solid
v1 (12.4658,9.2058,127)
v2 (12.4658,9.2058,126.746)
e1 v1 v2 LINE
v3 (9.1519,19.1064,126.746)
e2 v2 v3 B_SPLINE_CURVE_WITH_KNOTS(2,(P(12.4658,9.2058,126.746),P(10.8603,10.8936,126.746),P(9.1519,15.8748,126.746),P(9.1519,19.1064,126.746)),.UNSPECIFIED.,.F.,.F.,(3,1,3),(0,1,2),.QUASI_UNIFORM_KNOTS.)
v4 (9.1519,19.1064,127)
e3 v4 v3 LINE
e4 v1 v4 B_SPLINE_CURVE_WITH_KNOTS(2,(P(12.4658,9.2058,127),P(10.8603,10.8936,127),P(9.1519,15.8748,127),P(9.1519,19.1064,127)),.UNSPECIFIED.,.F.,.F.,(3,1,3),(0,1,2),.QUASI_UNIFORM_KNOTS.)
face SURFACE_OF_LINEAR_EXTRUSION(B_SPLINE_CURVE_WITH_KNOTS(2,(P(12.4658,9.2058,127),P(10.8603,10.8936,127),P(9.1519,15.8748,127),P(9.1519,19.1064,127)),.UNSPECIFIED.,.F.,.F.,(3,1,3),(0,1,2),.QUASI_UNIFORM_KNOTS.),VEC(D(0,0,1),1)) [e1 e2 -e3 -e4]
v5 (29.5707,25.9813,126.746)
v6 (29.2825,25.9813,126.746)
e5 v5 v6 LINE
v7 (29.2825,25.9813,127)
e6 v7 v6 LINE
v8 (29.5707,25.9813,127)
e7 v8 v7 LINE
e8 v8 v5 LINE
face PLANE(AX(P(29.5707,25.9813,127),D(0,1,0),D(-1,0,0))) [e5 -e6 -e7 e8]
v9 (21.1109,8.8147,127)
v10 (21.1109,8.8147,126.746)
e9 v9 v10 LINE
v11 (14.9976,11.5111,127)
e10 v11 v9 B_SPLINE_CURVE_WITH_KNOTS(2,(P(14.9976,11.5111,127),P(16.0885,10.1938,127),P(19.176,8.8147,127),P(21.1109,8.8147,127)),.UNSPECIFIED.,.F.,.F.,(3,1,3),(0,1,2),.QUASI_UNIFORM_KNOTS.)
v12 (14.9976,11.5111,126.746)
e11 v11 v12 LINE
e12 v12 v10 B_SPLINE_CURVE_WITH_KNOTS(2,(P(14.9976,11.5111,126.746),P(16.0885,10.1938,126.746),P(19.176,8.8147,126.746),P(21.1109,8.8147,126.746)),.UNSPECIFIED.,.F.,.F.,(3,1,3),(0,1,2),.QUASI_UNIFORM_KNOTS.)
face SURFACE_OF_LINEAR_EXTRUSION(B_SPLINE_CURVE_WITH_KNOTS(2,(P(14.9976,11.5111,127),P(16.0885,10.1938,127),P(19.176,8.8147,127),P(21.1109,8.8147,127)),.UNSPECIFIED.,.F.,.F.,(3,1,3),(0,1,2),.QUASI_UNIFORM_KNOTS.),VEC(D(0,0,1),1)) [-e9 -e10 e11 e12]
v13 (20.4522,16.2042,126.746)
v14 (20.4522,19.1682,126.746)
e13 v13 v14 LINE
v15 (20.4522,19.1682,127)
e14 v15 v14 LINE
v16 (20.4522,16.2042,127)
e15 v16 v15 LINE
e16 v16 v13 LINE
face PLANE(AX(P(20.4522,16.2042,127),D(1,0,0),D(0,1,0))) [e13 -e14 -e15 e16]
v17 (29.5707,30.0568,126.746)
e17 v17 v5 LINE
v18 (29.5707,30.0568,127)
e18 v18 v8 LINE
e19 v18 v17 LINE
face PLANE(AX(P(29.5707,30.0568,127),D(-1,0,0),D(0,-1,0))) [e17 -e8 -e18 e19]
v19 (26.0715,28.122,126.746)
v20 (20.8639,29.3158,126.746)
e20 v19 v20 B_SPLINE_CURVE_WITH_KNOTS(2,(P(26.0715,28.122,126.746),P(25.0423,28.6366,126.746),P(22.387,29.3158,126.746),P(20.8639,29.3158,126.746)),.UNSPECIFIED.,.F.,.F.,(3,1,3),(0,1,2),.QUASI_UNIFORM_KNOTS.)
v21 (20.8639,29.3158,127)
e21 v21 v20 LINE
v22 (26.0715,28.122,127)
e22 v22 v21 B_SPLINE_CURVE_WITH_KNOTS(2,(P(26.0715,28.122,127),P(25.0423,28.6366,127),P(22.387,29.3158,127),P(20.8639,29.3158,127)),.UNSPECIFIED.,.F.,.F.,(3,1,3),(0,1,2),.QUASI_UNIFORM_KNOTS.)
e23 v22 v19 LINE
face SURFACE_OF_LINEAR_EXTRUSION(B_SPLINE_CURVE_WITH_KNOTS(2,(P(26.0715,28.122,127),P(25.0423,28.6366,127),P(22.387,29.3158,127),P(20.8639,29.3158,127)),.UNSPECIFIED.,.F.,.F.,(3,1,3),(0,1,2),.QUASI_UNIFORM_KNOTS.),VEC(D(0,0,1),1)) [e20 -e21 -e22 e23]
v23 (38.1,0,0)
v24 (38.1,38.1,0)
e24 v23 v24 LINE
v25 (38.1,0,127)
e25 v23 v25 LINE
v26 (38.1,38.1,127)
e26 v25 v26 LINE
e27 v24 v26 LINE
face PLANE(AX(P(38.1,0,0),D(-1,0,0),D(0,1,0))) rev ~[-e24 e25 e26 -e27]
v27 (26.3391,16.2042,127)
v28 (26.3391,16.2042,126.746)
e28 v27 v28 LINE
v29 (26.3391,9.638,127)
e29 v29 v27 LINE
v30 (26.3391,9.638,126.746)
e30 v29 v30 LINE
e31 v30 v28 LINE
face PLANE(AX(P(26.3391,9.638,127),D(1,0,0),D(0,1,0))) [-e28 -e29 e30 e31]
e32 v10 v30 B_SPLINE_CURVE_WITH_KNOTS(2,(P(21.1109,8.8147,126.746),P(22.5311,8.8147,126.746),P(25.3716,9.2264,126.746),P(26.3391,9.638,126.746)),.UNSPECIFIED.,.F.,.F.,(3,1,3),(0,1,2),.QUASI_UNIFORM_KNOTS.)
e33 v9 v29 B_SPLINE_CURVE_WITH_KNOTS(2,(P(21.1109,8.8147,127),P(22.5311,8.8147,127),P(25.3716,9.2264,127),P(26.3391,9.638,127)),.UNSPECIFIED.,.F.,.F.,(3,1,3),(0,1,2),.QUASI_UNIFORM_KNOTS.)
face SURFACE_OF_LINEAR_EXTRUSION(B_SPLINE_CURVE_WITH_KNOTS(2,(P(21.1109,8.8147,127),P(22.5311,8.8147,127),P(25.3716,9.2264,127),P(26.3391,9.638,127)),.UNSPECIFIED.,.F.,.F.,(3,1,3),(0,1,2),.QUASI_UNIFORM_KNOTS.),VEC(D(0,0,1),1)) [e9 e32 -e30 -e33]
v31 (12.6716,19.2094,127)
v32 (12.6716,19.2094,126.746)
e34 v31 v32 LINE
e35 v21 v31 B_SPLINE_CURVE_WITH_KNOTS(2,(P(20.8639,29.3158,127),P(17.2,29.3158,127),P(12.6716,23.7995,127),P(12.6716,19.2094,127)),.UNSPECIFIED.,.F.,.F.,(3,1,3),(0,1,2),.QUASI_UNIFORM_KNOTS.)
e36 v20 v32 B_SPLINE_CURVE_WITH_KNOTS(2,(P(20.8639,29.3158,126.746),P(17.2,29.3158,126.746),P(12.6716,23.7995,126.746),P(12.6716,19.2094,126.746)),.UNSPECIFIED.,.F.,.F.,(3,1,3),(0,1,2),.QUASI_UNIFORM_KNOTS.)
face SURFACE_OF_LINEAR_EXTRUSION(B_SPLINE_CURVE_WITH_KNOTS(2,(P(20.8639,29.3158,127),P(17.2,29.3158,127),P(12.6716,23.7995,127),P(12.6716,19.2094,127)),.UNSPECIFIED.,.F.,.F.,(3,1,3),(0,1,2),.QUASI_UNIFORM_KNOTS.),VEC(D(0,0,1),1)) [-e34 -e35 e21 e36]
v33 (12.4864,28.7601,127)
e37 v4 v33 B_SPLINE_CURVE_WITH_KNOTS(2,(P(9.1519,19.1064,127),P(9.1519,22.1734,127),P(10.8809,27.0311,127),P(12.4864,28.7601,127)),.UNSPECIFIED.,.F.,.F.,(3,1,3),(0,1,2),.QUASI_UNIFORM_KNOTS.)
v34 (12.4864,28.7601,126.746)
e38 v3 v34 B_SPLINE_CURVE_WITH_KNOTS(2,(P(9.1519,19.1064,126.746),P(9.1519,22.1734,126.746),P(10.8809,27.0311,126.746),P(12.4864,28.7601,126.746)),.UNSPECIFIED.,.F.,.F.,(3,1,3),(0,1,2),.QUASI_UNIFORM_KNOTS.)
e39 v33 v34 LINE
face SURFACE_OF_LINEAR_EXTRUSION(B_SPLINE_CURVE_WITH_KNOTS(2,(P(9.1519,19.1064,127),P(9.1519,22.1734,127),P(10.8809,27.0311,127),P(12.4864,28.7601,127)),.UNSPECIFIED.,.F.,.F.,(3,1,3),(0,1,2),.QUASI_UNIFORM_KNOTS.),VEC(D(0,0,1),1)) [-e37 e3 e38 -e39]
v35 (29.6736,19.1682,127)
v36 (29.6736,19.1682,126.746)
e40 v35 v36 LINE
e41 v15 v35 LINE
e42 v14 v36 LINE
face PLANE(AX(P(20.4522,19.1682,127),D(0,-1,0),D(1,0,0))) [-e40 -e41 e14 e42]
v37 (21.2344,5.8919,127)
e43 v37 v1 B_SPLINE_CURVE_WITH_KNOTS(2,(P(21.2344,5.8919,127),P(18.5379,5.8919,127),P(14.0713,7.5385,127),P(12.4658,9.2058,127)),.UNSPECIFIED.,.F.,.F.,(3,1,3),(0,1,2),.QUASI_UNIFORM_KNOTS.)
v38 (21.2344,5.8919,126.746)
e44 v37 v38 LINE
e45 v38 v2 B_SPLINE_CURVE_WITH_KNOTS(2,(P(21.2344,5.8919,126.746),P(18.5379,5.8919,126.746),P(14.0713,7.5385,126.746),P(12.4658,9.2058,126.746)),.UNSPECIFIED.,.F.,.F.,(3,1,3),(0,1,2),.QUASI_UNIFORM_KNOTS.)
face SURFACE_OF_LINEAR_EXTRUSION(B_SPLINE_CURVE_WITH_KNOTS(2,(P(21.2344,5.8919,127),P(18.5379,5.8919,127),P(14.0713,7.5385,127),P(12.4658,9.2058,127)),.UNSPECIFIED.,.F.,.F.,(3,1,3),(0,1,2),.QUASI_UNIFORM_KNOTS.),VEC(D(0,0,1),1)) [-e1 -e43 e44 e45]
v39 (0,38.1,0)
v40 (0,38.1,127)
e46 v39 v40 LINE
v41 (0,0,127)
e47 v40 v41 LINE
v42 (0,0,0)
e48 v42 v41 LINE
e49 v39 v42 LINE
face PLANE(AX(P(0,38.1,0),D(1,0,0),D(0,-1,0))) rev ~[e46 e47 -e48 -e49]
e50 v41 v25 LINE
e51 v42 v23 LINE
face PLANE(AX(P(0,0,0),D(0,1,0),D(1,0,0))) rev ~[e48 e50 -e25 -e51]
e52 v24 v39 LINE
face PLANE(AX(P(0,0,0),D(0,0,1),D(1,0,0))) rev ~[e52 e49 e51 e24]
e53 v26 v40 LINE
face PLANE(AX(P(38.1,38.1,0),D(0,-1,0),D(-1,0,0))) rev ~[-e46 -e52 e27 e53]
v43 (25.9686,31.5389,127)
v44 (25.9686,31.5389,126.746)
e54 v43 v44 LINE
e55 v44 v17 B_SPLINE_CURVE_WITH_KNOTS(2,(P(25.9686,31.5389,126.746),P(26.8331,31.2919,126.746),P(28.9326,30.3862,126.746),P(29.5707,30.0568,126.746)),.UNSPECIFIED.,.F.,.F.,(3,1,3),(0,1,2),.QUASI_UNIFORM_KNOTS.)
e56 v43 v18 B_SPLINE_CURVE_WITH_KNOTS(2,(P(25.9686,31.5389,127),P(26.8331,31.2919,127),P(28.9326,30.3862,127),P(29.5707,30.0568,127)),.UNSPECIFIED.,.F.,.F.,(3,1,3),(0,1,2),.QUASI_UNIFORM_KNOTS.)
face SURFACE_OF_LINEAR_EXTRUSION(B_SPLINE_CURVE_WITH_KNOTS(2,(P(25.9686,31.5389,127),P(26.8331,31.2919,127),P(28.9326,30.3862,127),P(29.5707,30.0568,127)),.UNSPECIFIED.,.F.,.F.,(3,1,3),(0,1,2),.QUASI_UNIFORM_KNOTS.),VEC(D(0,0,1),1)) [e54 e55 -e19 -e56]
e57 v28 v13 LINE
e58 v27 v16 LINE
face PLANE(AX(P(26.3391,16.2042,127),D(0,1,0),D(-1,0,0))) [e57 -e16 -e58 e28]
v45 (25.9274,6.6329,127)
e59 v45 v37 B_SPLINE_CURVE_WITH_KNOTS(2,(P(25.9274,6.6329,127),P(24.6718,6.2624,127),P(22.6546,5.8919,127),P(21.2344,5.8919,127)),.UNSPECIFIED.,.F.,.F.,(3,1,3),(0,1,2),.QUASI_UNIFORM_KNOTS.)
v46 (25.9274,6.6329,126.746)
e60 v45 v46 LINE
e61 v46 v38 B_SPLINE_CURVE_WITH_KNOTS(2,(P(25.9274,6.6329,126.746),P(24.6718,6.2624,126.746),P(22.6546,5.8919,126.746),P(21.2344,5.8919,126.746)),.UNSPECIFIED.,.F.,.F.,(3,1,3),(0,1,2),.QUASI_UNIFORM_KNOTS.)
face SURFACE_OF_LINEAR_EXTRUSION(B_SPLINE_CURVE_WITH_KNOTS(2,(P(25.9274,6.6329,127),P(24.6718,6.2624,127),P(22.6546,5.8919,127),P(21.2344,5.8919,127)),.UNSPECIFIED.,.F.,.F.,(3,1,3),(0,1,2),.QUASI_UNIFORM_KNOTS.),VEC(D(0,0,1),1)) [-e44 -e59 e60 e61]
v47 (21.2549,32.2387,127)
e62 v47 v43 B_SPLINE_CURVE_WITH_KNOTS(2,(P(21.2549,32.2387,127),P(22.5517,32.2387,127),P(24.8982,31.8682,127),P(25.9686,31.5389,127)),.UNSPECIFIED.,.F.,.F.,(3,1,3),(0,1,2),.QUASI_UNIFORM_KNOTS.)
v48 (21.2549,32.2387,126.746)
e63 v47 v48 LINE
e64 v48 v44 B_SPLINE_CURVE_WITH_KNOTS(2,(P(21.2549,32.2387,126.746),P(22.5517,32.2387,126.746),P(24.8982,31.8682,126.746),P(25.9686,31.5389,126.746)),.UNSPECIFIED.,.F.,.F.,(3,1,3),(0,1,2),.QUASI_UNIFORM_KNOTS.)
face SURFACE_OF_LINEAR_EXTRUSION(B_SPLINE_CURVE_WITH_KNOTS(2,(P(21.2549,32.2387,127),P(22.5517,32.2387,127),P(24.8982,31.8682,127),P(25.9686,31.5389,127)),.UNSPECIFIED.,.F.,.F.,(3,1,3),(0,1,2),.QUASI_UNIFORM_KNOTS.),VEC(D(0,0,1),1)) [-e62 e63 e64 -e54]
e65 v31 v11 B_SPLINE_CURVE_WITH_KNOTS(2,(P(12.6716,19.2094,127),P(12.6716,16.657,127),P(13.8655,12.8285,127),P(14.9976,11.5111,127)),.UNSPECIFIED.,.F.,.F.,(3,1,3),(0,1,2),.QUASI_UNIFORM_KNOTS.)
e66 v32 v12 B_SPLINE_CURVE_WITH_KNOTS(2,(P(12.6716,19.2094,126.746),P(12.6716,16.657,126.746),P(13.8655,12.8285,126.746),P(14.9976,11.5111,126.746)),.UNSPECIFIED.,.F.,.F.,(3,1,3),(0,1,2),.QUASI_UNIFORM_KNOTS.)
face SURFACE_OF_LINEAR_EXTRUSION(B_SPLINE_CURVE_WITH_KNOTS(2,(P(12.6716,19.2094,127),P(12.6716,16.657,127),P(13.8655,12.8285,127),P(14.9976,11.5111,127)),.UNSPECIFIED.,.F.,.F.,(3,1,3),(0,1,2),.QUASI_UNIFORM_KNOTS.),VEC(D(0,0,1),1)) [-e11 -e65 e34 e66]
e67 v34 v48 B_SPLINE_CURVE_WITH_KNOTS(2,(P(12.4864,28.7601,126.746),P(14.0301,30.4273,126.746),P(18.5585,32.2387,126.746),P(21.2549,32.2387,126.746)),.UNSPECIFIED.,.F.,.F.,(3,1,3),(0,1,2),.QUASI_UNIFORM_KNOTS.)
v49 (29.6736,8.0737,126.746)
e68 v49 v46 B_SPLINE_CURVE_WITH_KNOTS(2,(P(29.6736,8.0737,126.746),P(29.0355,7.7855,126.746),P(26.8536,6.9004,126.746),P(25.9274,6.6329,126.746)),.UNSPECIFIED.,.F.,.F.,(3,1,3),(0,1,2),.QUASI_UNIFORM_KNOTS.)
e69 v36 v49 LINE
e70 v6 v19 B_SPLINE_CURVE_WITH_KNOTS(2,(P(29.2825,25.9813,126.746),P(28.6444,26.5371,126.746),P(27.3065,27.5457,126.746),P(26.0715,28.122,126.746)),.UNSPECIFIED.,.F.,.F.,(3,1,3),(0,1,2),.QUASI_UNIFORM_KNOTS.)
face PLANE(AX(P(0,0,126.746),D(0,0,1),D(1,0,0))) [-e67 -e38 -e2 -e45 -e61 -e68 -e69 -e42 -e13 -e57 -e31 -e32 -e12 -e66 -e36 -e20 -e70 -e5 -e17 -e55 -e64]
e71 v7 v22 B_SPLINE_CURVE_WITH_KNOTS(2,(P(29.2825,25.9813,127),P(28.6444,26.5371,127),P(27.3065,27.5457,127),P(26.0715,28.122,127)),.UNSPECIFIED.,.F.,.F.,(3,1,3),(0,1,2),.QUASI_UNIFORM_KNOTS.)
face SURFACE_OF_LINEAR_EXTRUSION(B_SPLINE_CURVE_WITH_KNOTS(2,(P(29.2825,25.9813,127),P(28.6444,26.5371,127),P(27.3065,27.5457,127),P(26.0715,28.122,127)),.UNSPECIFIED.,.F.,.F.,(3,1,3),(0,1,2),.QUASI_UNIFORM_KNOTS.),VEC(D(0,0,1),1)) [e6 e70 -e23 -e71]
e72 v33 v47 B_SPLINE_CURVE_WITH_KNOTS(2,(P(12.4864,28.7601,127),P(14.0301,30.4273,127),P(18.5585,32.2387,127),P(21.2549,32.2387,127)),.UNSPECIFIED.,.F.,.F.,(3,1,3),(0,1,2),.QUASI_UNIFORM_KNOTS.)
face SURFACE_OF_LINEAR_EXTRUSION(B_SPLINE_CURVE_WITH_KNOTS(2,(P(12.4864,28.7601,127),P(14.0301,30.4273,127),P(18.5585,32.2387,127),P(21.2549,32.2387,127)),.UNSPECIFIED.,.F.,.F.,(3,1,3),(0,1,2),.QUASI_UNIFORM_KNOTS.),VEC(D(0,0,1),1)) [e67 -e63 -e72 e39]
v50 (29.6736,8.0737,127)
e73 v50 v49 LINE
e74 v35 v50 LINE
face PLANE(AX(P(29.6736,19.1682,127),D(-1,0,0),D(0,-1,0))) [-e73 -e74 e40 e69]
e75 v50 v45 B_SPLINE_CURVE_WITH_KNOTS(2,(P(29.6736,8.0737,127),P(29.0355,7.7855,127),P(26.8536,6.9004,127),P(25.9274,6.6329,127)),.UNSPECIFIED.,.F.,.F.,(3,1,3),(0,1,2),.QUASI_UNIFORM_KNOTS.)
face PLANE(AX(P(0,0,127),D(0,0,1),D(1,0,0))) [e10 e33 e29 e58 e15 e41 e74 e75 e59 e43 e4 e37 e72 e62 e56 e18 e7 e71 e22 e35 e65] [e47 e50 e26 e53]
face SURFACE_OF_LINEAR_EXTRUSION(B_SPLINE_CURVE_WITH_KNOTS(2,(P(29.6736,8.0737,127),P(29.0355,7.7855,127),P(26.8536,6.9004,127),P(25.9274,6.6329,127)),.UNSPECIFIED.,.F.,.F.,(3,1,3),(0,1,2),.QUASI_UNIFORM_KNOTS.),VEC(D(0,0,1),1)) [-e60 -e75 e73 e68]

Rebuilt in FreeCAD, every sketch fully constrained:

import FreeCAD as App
import Part
import Sketcher
from FreeCAD import Vector
Q = App.Units.Quantity

doc = App.newDocument("Part")
body = doc.addObject("PartDesign::Body", "Body")

sketch1 = body.newObject("Sketcher::SketchObject", "Sketch")
sketch1.AttachmentSupport = (doc.getObject("XY_Plane"), [""])
sketch1.MapMode = "FlatFace"
sketch1.addGeometry(Part.LineSegment(Vector(0, 38.1, 0), Vector(0, 0, 0)), False)
sketch1.addGeometry(Part.LineSegment(Vector(0, 0, 0), Vector(38.1, 0, 0)), False)
sketch1.addGeometry(Part.LineSegment(Vector(38.1, 0, 0), Vector(38.1, 38.1, 0)), False)
sketch1.addGeometry(Part.LineSegment(Vector(38.1, 38.1, 0), Vector(0, 38.1, 0)), False)
sketch1.addConstraint(Sketcher.Constraint("Coincident", 0, 2, 1, 1))
sketch1.addConstraint(Sketcher.Constraint("Coincident", 1, 2, 2, 1))
sketch1.addConstraint(Sketcher.Constraint("Coincident", 2, 2, 3, 1))
sketch1.addConstraint(Sketcher.Constraint("Coincident", 3, 2, 0, 1))
sketch1.addConstraint(Sketcher.Constraint("Vertical", 0))
sketch1.addConstraint(Sketcher.Constraint("Horizontal", 1))
sketch1.addConstraint(Sketcher.Constraint("Vertical", 2))
sketch1.addConstraint(Sketcher.Constraint("Horizontal", 3))
sketch1.addConstraint(Sketcher.Constraint("Coincident", 0, 2, -1, 1))
sketch1.addConstraint(Sketcher.Constraint("Equal", 3, 0))
sketch1.addConstraint(Sketcher.Constraint("DistanceX", 1, 1, 1, 2, Q("1.5 in")))
pad1 = body.newObject("PartDesign::Pad", "Pad")
pad1.Profile = sketch1
pad1.Length = Q("5 in")

sketch2 = body.newObject("Sketcher::SketchObject", "Sketch001")
sketch2.AttachmentSupport = (doc.getObject("XY_Plane"), [""])
sketch2.MapMode = "FlatFace"
sketch2.AttachmentOffset = App.Placement(Vector(0, 0, 5 * 25.4), App.Rotation())
sketch2.addGeometry(Part.BSplineCurve([Vector(21.2344, 5.8919, 0), Vector(18.5379, 5.8919, 0), Vector(14.0713, 7.5385, 0), Vector(12.4658, 9.2058, 0)], [3, 1, 3], [0, 1, 2], False, 2, [1, 1, 1, 1], False), False)
sketch2.addGeometry(Part.BSplineCurve([Vector(25.9274, 6.6329, 0), Vector(24.6718, 6.2624, 0), Vector(22.6546, 5.8919, 0), Vector(21.2344, 5.8919, 0)], [3, 1, 3], [0, 1, 2], False, 2, [1, 1, 1, 1], False), False)
sketch2.addGeometry(Part.BSplineCurve([Vector(29.6736, 8.0737, 0), Vector(29.0355, 7.7855, 0), Vector(26.8536, 6.9004, 0), Vector(25.9274, 6.6329, 0)], [3, 1, 3], [0, 1, 2], False, 2, [1, 1, 1, 1], False), False)
sketch2.addGeometry(Part.LineSegment(Vector(29.6736, 8.0737, 0), Vector(29.6736, 19.1682, 0)), False)
sketch2.addGeometry(Part.LineSegment(Vector(29.6736, 19.1682, 0), Vector(20.4522, 19.1682, 0)), False)
sketch2.addGeometry(Part.LineSegment(Vector(20.4522, 19.1682, 0), Vector(20.4522, 16.2042, 0)), False)
sketch2.addGeometry(Part.LineSegment(Vector(20.4522, 16.2042, 0), Vector(26.3391, 16.2042, 0)), False)
sketch2.addGeometry(Part.LineSegment(Vector(26.3391, 16.2042, 0), Vector(26.3391, 9.638, 0)), False)
sketch2.addGeometry(Part.BSplineCurve([Vector(21.1109, 8.8147, 0), Vector(22.5311, 8.8147, 0), Vector(25.3716, 9.2264, 0), Vector(26.3391, 9.638, 0)], [3, 1, 3], [0, 1, 2], False, 2, [1, 1, 1, 1], False), False)
sketch2.addGeometry(Part.BSplineCurve([Vector(14.9976, 11.5111, 0), Vector(16.0885, 10.1938, 0), Vector(19.176, 8.8147, 0), Vector(21.1109, 8.8147, 0)], [3, 1, 3], [0, 1, 2], False, 2, [1, 1, 1, 1], False), False)
sketch2.addGeometry(Part.BSplineCurve([Vector(12.6716, 19.2094, 0), Vector(12.6716, 16.657, 0), Vector(13.8655, 12.8285, 0), Vector(14.9976, 11.5111, 0)], [3, 1, 3], [0, 1, 2], False, 2, [1, 1, 1, 1], False), False)
sketch2.addGeometry(Part.BSplineCurve([Vector(20.8639, 29.3158, 0), Vector(17.2, 29.3158, 0), Vector(12.6716, 23.7995, 0), Vector(12.6716, 19.2094, 0)], [3, 1, 3], [0, 1, 2], False, 2, [1, 1, 1, 1], False), False)
sketch2.addGeometry(Part.BSplineCurve([Vector(26.0715, 28.122, 0), Vector(25.0423, 28.6366, 0), Vector(22.387, 29.3158, 0), Vector(20.8639, 29.3158, 0)], [3, 1, 3], [0, 1, 2], False, 2, [1, 1, 1, 1], False), False)
sketch2.addGeometry(Part.BSplineCurve([Vector(29.2825, 25.9813, 0), Vector(28.6444, 26.5371, 0), Vector(27.3065, 27.5457, 0), Vector(26.0715, 28.122, 0)], [3, 1, 3], [0, 1, 2], False, 2, [1, 1, 1, 1], False), False)
sketch2.addGeometry(Part.LineSegment(Vector(29.2825, 25.9813, 0), Vector(29.5707, 25.9813, 0)), False)
sketch2.addGeometry(Part.LineSegment(Vector(29.5707, 25.9813, 0), Vector(29.5707, 30.0568, 0)), False)
sketch2.addGeometry(Part.BSplineCurve([Vector(25.9686, 31.5389, 0), Vector(26.8331, 31.2919, 0), Vector(28.9326, 30.3862, 0), Vector(29.5707, 30.0568, 0)], [3, 1, 3], [0, 1, 2], False, 2, [1, 1, 1, 1], False), False)
sketch2.addGeometry(Part.BSplineCurve([Vector(21.2549, 32.2387, 0), Vector(22.5517, 32.2387, 0), Vector(24.8982, 31.8682, 0), Vector(25.9686, 31.5389, 0)], [3, 1, 3], [0, 1, 2], False, 2, [1, 1, 1, 1], False), False)
sketch2.addGeometry(Part.BSplineCurve([Vector(12.4864, 28.7601, 0), Vector(14.0301, 30.4273, 0), Vector(18.5585, 32.2387, 0), Vector(21.2549, 32.2387, 0)], [3, 1, 3], [0, 1, 2], False, 2, [1, 1, 1, 1], False), False)
sketch2.addGeometry(Part.BSplineCurve([Vector(9.1519, 19.1064, 0), Vector(9.1519, 22.1734, 0), Vector(10.8809, 27.0311, 0), Vector(12.4864, 28.7601, 0)], [3, 1, 3], [0, 1, 2], False, 2, [1, 1, 1, 1], False), False)
sketch2.addGeometry(Part.BSplineCurve([Vector(12.4658, 9.2058, 0), Vector(10.8603, 10.8936, 0), Vector(9.1519, 15.8748, 0), Vector(9.1519, 19.1064, 0)], [3, 1, 3], [0, 1, 2], False, 2, [1, 1, 1, 1], False), False)
sketch2.addConstraint(Sketcher.Constraint("Block", 0))
sketch2.addConstraint(Sketcher.Constraint("Block", 1))
sketch2.addConstraint(Sketcher.Constraint("Block", 2))
sketch2.addConstraint(Sketcher.Constraint("Block", 8))
sketch2.addConstraint(Sketcher.Constraint("Block", 9))
sketch2.addConstraint(Sketcher.Constraint("Block", 10))
sketch2.addConstraint(Sketcher.Constraint("Block", 11))
sketch2.addConstraint(Sketcher.Constraint("Block", 12))
sketch2.addConstraint(Sketcher.Constraint("Block", 13))
sketch2.addConstraint(Sketcher.Constraint("Block", 16))
sketch2.addConstraint(Sketcher.Constraint("Block", 17))
sketch2.addConstraint(Sketcher.Constraint("Block", 18))
sketch2.addConstraint(Sketcher.Constraint("Block", 19))
sketch2.addConstraint(Sketcher.Constraint("Block", 20))
sketch2.addConstraint(Sketcher.Constraint("Coincident", 2, 1, 3, 1))
sketch2.addConstraint(Sketcher.Constraint("Coincident", 3, 2, 4, 1))
sketch2.addConstraint(Sketcher.Constraint("Coincident", 4, 2, 5, 1))
sketch2.addConstraint(Sketcher.Constraint("Coincident", 5, 2, 6, 1))
sketch2.addConstraint(Sketcher.Constraint("Coincident", 6, 2, 7, 1))
sketch2.addConstraint(Sketcher.Constraint("Coincident", 7, 2, 8, 2))
sketch2.addConstraint(Sketcher.Constraint("Coincident", 13, 1, 14, 1))
sketch2.addConstraint(Sketcher.Constraint("Coincident", 14, 2, 15, 1))
sketch2.addConstraint(Sketcher.Constraint("Coincident", 15, 2, 16, 2))
sketch2.addConstraint(Sketcher.Constraint("Vertical", 3))
sketch2.addConstraint(Sketcher.Constraint("Horizontal", 4))
sketch2.addConstraint(Sketcher.Constraint("Vertical", 5))
sketch2.addConstraint(Sketcher.Constraint("Horizontal", 6))
sketch2.addConstraint(Sketcher.Constraint("Vertical", 7))
sketch2.addConstraint(Sketcher.Constraint("Horizontal", 14))
sketch2.addConstraint(Sketcher.Constraint("Vertical", 15))
sketch2.addConstraint(Sketcher.Constraint("DistanceY", 3, 1, 3, 2, Q("0.4368 in")))
sketch2.addConstraint(Sketcher.Constraint("DistanceY", 5, 2, 5, 1, Q("0.1167 in")))
sketch2.addConstraint(Sketcher.Constraint("DistanceX", 4, 2, 14, 2, Q("0.359 in")))
pocket1 = body.newObject("PartDesign::Pocket", "Pocket")
pocket1.Profile = sketch2
pocket1.Length = Q("0.01 in")

doc.recompute()
